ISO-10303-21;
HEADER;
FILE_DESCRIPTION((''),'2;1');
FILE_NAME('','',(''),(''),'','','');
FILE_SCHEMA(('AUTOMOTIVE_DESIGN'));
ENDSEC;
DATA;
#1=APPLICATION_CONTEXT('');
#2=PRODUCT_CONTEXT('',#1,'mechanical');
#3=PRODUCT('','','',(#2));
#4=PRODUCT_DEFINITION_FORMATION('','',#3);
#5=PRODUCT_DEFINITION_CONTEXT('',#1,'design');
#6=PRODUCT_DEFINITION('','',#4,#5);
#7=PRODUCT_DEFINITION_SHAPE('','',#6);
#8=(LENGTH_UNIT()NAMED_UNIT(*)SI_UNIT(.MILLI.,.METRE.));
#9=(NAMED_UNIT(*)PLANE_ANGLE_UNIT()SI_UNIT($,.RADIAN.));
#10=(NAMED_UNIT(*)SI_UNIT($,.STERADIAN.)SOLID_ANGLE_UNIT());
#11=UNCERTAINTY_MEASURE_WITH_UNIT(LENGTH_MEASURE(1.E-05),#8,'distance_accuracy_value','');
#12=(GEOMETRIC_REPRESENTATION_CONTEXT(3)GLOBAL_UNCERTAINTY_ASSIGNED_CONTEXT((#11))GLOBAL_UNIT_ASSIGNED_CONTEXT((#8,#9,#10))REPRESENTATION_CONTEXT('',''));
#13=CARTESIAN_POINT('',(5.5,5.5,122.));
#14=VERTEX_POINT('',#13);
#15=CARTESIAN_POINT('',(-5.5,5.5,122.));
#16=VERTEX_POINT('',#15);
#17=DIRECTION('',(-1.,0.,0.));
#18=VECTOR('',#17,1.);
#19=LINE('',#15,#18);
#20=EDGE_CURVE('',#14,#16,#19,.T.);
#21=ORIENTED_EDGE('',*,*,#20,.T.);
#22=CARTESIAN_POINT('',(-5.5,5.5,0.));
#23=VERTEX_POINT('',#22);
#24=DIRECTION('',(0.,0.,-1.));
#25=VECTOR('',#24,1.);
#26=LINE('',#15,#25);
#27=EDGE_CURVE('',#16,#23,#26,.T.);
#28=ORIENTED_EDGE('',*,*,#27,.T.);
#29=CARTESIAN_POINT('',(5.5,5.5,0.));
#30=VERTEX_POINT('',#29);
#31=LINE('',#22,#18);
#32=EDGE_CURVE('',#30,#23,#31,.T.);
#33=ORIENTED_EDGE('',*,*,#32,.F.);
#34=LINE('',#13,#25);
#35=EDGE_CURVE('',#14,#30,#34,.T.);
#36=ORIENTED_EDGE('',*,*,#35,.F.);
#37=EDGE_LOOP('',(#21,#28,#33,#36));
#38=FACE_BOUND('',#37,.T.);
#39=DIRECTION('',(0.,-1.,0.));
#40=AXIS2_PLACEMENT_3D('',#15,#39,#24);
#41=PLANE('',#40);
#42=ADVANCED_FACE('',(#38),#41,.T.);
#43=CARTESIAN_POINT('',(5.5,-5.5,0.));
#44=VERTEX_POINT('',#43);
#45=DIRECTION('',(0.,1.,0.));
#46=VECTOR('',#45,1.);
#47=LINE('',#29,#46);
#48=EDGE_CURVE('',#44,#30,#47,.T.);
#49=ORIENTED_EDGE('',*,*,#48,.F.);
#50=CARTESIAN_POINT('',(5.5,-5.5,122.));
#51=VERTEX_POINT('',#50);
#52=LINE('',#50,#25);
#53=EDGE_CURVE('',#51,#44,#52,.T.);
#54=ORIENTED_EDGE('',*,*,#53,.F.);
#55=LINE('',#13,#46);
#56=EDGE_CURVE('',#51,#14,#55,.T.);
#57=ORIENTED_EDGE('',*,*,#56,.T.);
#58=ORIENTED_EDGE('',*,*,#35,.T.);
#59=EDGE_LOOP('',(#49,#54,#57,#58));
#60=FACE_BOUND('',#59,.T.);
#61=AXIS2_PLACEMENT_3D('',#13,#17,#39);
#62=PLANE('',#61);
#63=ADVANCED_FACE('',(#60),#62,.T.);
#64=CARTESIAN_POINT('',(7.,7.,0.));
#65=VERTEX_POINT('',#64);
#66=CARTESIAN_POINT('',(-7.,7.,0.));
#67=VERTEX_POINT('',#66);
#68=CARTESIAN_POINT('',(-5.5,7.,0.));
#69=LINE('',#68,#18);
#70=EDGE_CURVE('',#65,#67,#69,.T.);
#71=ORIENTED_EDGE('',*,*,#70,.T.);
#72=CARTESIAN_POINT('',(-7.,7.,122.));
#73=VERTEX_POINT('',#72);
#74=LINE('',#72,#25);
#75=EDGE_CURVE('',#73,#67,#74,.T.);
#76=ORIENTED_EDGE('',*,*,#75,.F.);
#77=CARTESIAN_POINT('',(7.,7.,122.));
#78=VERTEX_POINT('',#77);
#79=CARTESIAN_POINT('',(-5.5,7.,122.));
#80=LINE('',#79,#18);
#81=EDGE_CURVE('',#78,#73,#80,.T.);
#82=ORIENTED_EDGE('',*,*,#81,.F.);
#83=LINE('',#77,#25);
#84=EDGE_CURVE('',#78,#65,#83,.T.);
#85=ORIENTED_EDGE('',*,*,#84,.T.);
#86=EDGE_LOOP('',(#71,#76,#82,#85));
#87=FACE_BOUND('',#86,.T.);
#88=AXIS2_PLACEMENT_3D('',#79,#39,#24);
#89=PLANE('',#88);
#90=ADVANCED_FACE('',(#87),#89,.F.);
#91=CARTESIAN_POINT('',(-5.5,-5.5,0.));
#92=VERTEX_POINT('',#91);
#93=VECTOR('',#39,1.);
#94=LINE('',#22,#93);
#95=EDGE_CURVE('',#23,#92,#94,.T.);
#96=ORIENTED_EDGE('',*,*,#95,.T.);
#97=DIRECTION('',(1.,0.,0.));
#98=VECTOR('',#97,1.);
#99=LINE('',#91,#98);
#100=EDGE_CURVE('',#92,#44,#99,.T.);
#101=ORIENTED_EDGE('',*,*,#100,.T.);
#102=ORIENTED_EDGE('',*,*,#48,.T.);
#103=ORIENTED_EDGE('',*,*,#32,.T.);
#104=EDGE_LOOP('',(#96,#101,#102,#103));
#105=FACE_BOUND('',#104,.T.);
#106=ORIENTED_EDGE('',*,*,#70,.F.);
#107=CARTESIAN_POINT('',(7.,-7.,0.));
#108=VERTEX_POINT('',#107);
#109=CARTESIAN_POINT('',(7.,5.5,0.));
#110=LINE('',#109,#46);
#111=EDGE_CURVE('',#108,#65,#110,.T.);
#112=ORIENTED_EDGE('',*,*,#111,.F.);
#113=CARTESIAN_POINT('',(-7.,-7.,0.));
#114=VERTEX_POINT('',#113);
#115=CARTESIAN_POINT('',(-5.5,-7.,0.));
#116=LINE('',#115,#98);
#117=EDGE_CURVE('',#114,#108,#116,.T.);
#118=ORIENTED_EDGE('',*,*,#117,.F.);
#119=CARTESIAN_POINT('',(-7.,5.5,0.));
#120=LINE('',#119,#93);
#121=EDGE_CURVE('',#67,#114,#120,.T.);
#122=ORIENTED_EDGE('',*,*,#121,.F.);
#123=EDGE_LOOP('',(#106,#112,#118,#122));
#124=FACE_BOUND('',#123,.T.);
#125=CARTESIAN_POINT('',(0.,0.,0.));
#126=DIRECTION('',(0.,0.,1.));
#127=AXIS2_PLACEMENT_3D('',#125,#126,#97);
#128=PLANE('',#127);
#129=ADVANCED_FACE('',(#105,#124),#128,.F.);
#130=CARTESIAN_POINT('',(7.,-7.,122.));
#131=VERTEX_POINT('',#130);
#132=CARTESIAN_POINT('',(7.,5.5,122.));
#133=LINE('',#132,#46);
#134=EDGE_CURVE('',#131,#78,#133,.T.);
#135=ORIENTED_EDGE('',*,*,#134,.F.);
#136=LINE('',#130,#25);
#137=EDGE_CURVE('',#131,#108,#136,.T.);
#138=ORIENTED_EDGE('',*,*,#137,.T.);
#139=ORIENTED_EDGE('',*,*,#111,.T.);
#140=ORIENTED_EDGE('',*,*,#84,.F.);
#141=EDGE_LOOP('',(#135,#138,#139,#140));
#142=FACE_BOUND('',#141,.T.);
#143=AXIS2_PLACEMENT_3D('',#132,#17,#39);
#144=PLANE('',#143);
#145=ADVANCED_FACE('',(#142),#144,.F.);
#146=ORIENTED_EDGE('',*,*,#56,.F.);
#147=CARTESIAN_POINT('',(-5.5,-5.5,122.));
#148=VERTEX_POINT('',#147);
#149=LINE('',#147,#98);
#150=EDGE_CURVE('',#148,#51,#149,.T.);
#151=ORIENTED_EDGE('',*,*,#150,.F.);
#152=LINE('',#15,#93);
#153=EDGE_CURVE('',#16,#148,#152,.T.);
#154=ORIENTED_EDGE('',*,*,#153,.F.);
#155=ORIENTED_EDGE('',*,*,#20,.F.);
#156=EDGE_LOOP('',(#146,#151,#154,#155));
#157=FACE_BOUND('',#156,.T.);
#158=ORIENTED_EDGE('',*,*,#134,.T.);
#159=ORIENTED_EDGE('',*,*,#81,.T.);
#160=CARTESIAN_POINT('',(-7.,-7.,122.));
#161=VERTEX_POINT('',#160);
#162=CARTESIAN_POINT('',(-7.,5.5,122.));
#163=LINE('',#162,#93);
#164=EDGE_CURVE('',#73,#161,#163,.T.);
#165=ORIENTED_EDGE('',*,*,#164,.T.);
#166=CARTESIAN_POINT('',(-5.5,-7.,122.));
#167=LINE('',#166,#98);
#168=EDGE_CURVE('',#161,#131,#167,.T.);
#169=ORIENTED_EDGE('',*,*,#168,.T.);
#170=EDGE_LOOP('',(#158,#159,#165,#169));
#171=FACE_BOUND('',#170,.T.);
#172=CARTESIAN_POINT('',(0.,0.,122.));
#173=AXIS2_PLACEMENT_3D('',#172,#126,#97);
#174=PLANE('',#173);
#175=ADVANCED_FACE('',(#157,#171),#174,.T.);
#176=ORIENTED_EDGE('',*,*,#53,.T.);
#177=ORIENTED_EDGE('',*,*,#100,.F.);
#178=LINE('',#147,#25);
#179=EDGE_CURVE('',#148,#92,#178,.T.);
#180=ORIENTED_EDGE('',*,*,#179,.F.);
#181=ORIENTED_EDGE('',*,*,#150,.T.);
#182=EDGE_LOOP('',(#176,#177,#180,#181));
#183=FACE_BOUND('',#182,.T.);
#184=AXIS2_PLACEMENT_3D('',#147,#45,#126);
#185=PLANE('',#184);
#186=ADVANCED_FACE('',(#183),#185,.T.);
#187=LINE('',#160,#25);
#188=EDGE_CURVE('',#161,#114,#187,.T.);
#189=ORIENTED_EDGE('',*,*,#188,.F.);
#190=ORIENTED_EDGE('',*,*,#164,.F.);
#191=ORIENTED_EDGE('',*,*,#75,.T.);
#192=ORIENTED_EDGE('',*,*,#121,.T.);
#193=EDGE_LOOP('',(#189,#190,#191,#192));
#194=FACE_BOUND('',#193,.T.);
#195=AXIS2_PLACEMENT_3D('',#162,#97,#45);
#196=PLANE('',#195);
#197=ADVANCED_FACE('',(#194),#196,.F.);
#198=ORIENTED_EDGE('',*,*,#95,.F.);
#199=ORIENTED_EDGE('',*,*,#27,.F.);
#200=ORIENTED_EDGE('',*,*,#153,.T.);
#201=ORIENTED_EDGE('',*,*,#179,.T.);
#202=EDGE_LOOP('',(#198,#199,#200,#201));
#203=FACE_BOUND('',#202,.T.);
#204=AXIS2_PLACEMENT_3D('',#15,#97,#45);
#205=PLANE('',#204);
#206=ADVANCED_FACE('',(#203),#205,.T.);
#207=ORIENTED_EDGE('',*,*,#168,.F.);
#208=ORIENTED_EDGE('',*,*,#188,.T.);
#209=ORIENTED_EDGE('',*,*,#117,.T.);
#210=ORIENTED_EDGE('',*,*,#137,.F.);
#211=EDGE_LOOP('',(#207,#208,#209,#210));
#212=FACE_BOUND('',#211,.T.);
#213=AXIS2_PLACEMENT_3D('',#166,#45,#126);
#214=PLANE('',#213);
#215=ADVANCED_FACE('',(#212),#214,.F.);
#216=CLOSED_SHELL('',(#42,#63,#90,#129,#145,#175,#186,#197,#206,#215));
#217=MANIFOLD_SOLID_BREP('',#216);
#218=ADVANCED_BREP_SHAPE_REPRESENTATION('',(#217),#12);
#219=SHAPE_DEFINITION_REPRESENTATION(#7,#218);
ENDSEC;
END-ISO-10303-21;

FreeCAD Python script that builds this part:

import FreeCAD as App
import Part
import Sketcher
from FreeCAD import Vector
Q = App.Units.Quantity


def add_polygon(sketch, points):
    """Adds a closed chain of lines whose ends are joined by coincident constraints."""
    first, n = sketch.GeometryCount, len(points)
    for a, b in zip(points, points[1:] + points[:1]):
        sketch.addGeometry(Part.LineSegment(App.Vector(*a, 0), App.Vector(*b, 0)), False)
    for i in range(n):
        sketch.addConstraint(Sketcher.Constraint("Coincident", first + i, 2, first + (i + 1) % n, 1))

doc = App.newDocument("Part")
body = doc.addObject("PartDesign::Body", "Body")

sketch1 = doc.addObject("Sketcher::SketchObject", "Sketch")
body.addObject(sketch1)
sketch1.AttachmentSupport = (doc.XY_Plane, [""])
sketch1.MapMode = "FlatFace"
add_polygon(sketch1, [(-7, 7), (-7, -7), (7, -7), (7, 7)])
add_polygon(sketch1, [(5.5, -5.5), (-5.5, -5.5), (-5.5, 5.5), (5.5, 5.5)])
sketch1.addConstraint(Sketcher.Constraint("Vertical", 0))
sketch1.addConstraint(Sketcher.Constraint("Horizontal", 1))
sketch1.addConstraint(Sketcher.Constraint("Vertical", 2))
sketch1.addConstraint(Sketcher.Constraint("Horizontal", 3))
sketch1.addConstraint(Sketcher.Constraint("Horizontal", 4))
sketch1.addConstraint(Sketcher.Constraint("Vertical", 5))
sketch1.addConstraint(Sketcher.Constraint("Horizontal", 6))
sketch1.addConstraint(Sketcher.Constraint("Vertical", 7))
sketch1.addConstraint(Sketcher.Constraint("Symmetric", 0, 2, 2, 2, -1, 1))
sketch1.addConstraint(Sketcher.Constraint("Symmetric", 4, 2, 6, 2, -1, 1))
sketch1.addConstraint(Sketcher.Constraint("Equal", 3, 0))
sketch1.addConstraint(Sketcher.Constraint("Equal", 6, 5))
sketch1.addConstraint(Sketcher.Constraint("DistanceX", 1, 1, 1, 2, Q("14 mm")))
sketch1.addConstraint(Sketcher.Constraint("DistanceX", 4, 2, 4, 1, Q("11 mm")))
pad1 = doc.addObject("PartDesign::Pad", "Pad")
body.addObject(pad1)
pad1.Profile = sketch1
pad1.Length = 122

doc.recompute()
